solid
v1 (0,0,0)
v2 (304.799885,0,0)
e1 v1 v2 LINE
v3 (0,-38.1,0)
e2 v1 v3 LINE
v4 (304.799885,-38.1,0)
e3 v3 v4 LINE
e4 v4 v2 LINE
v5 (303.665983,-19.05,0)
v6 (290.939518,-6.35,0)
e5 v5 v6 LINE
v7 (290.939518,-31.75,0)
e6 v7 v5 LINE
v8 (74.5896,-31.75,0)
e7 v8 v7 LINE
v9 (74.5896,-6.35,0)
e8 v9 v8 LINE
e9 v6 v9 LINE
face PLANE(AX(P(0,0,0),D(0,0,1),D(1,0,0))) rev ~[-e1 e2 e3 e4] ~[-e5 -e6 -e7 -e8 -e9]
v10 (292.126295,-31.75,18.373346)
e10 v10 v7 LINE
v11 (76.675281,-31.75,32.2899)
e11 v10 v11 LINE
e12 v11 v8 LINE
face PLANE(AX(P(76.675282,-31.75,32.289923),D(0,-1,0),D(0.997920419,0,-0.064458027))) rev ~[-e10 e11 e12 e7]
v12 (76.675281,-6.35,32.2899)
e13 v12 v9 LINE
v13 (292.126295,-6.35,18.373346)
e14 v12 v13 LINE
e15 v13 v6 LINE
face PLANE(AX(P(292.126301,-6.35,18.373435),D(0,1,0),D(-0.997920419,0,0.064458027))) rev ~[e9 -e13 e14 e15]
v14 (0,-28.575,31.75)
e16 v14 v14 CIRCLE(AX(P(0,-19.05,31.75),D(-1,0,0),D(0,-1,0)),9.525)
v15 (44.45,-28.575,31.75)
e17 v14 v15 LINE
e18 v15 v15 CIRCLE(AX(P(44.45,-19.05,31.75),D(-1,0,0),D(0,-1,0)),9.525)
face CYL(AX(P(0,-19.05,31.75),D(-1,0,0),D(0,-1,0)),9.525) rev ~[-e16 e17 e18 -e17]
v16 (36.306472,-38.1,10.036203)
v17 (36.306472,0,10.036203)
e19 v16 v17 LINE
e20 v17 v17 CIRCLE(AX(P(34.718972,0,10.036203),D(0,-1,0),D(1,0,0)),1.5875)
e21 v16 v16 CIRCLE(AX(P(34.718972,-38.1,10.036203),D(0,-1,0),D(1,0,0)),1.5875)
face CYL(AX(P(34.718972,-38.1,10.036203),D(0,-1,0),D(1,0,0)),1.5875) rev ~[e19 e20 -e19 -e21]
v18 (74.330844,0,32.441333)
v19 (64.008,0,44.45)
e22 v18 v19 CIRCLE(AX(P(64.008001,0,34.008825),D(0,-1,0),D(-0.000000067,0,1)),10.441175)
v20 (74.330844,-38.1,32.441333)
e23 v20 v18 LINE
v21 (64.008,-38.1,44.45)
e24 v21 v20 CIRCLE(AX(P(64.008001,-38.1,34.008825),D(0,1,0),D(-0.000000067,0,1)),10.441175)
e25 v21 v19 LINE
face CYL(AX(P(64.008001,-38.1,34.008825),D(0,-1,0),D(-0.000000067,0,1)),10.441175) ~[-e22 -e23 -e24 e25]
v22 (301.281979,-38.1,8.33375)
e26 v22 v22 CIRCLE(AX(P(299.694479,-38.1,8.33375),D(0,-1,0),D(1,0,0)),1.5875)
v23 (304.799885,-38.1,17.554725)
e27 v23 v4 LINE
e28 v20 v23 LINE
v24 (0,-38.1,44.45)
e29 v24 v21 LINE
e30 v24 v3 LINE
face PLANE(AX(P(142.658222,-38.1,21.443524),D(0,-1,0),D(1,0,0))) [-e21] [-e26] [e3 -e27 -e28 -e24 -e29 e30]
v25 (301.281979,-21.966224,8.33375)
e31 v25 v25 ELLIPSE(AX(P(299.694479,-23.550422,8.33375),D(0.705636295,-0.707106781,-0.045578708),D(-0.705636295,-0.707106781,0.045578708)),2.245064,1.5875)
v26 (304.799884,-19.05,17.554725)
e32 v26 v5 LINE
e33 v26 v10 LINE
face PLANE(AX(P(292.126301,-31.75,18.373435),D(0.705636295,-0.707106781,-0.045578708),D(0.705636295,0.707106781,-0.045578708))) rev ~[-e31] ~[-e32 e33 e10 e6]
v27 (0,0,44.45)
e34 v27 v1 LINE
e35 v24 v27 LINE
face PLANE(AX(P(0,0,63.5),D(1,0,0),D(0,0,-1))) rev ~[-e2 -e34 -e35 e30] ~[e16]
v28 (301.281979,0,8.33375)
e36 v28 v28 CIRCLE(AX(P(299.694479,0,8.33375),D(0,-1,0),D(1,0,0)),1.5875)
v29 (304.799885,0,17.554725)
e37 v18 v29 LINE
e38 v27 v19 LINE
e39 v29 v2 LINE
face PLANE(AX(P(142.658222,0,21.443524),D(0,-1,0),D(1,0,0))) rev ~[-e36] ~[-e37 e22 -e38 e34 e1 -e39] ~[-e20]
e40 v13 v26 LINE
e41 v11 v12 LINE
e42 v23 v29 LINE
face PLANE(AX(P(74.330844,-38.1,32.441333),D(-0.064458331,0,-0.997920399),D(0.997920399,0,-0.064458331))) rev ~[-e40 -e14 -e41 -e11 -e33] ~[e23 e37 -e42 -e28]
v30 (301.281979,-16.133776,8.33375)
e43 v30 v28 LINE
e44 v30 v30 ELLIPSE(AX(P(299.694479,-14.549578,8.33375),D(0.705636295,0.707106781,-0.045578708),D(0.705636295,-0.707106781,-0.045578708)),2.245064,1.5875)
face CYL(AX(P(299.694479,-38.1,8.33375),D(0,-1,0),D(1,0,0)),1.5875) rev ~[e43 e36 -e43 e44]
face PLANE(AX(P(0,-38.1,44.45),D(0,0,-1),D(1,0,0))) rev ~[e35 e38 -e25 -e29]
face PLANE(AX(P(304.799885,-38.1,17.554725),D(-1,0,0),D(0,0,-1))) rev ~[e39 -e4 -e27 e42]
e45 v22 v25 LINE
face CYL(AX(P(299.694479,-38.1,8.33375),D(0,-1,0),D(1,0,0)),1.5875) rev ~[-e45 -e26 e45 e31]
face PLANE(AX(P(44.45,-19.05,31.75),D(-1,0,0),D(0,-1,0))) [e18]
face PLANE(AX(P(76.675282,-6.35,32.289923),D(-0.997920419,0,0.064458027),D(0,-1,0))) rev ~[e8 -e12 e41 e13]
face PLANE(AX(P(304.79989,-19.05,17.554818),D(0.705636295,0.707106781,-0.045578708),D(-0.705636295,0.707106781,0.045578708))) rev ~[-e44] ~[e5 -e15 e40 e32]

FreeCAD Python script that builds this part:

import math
import FreeCAD as App
import Part
import Sketcher
Q = App.Units.Quantity


def add_polygon(sketch, points):
    """Adds a closed chain of lines whose ends are joined by coincident constraints."""
    first, n = sketch.GeometryCount, len(points)
    for a, b in zip(points, points[1:] + points[:1]):
        sketch.addGeometry(Part.LineSegment(App.Vector(*a, 0), App.Vector(*b, 0)), False)
    for i in range(n):
        sketch.addConstraint(Sketcher.Constraint("Coincident", first + i, 2, first + (i + 1) % n, 1))

doc = App.newDocument("Part")
params = doc.addObject("Spreadsheet::Sheet", "Params")
for row, (alias, value) in enumerate([
    ("sketch1_width", "12 in"),
    ("sketch1_height", "2.5 in"),
    ("sketch1_height2", "0.75 in"),
    ("pad1_length", "1.5 in"),
    ("sketch2_diameter", "0.75 in"),
    ("pad2_length", "2 in"),
    ("sketch3_diameter", "0.75 in"),
    ("pocket1_length", "1.75 in"),
    ("sketch4_width", "2.52 in"),
    ("sketch4_height", "0.75 in"),
    ("pocket2_length", "1.83 in"),
    ("sketch5_height", "1 in"),
    ("sketch5_width", "8.5 in"),
    ("pocket3_length", "1.5 in"),
    ("sketch6_diameter", "0.125 in"),
    ("pocket4_length", "2.25 in"),
], start=1):
    params.set(f"A{row}", alias)
    params.set(f"B{row}", "=" + value)
    params.setAlias(f"B{row}", alias)

body = doc.addObject("PartDesign::Body", "Body")

# Sketch on XZ plane
sketch1 = doc.addObject("Sketcher::SketchObject", "Sketch")
body.addObject(sketch1)
sketch1.AttachmentSupport = (doc.XZ_Plane, [""])
sketch1.MapMode = "FlatFace"
add_polygon(sketch1, [(0, 64), (0, 0), (305, 0), (305, 19)])  # lines 0-3
sketch1.addConstraint([
    Sketcher.Constraint("Vertical", 0),
    Sketcher.Constraint("Horizontal", 1),
    Sketcher.Constraint("Vertical", 2),
    Sketcher.Constraint("Coincident", 0, 2, -1, 1),
    Sketcher.Constraint("DistanceX", 1, 1, 1, 2, Q("12 in")),
    Sketcher.Constraint("DistanceY", 0, 2, 0, 1, Q("2.5 in")),
    Sketcher.Constraint("DistanceY", 2, 1, 2, 2, Q("0.75 in")),
])
sketch1.setExpression("Constraints[8]", "Params.sketch1_width")
sketch1.setExpression("Constraints[9]", "Params.sketch1_height")
sketch1.setExpression("Constraints[10]", "Params.sketch1_height2")
pad1 = doc.addObject("PartDesign::Pad", "Pad")
body.addObject(pad1)
pad1.Profile = sketch1
pad1.setExpression("Length", "Params.pad1_length")

# Sketch on YZ plane
sketch2 = doc.addObject("Sketcher::SketchObject", "Sketch001")
body.addObject(sketch2)
sketch2.AttachmentSupport = (doc.YZ_Plane, [""])
sketch2.MapMode = "FlatFace"
sketch2.addGeometry(Part.Circle(App.Vector(-19, 32, 0), App.Vector(0, 0, 1), 10), False)
sketch2.addConstraint([
    Sketcher.Constraint("Diameter", 0, Q("0.75 in")),
    Sketcher.Constraint("DistanceX", 0, 3, -1, 1, Q("0.75 in")),
    Sketcher.Constraint("DistanceY", -1, 1, 0, 3, Q("1.25 in")),
])
sketch2.setExpression("Constraints[0]", "Params.sketch2_diameter")
pad2 = doc.addObject("PartDesign::Pad", "Pad001")
body.addObject(pad2)
pad2.Profile = sketch2
pad2.setExpression("Length", "Params.pad2_length")

# Sketch on YZ plane
sketch3 = doc.addObject("Sketcher::SketchObject", "Sketch002")
body.addObject(sketch3)
sketch3.AttachmentSupport = (doc.YZ_Plane, [""])
sketch3.MapMode = "FlatFace"
sketch3.addGeometry(Part.Circle(App.Vector(-19, 32, 0), App.Vector(0, 0, 1), 10), False)
sketch3.addConstraint([
    Sketcher.Constraint("Diameter", 0, Q("0.75 in")),
    Sketcher.Constraint("DistanceX", 0, 3, -1, 1, Q("0.75 in")),
    Sketcher.Constraint("DistanceY", -1, 1, 0, 3, Q("1.25 in")),
])
sketch3.setExpression("Constraints[0]", "Params.sketch3_diameter")
pocket1 = doc.addObject("PartDesign::Pocket", "Pocket")
body.addObject(pocket1)
pocket1.Profile = sketch3
pocket1.setExpression("Length", "Params.pocket1_length")
pocket1.Reversed = True

# Sketch on XZ plane
sketch4 = doc.addObject("Sketcher::SketchObject", "Sketch003")
body.addObject(sketch4)
sketch4.AttachmentSupport = (doc.XZ_Plane, [""])
sketch4.MapMode = "FlatFace"
sketch4.AttachmentOffset = App.Placement(App.Vector(0, 0, 1.5 * 25.4), App.Rotation())
sketch4.addGeometry([
    Part.LineSegment(App.Vector(0, 63.5, 0), App.Vector(0, 44.45, 0)),  # 0
    Part.LineSegment(App.Vector(0, 44.45, 0), App.Vector(64.008, 44.45, 0)),  # 1
    Part.ArcOfCircle(Part.Circle(App.Vector(64.008, 34.00883, 0), App.Vector(0, 0, 1), 10.44117), math.radians(-9), math.radians(90)),  # 2
    Part.LineSegment(App.Vector(74.33084, 32.44133, 0), App.Vector(304.79989, 17.55473, 0)),  # 3
    Part.LineSegment(App.Vector(304.79989, 17.55473, 0), App.Vector(304.79989, 0, 0)),  # 4
    Part.LineSegment(App.Vector(304.79989, 0, 0), App.Vector(304.8, 0, 0)),  # 5
    Part.LineSegment(App.Vector(304.8, 0, 0), App.Vector(304.8, 19.05, 0)),  # 6
    Part.LineSegment(App.Vector(304.8, 19.05, 0), App.Vector(0, 63.5, 0)),  # 7
], False)
sketch4.addConstraint([
    Sketcher.Constraint("Coincident", 0, 2, 1, 1),
    Sketcher.Constraint("Tangent", 1, 2, 2, 2),
    Sketcher.Constraint("Coincident", 2, 1, 3, 1),
    Sketcher.Constraint("Coincident", 3, 2, 4, 1),
    Sketcher.Constraint("Coincident", 4, 2, 5, 1),
    Sketcher.Constraint("Coincident", 5, 2, 6, 1),
    Sketcher.Constraint("Coincident", 6, 2, 7, 1),
    Sketcher.Constraint("Coincident", 7, 2, 0, 1),
    Sketcher.Constraint("Vertical", 0),
    Sketcher.Constraint("Horizontal", 1),
    Sketcher.Constraint("Vertical", 4),
    Sketcher.Constraint("Horizontal", 5),
    Sketcher.Constraint("Vertical", 6),
    Sketcher.Constraint("PointOnObject", 0, 2, -2),
    Sketcher.Constraint("PointOnObject", 4, 2, -1),
    Sketcher.Constraint("Equal", 0, 6),
    Sketcher.Constraint("DistanceX", -1, 1, 5, 2, Q("12 in")),
    Sketcher.Constraint("DistanceX", 1, 1, 1, 2, Q("2.52 in")),
    Sketcher.Constraint("DistanceY", 0, 2, 0, 1, Q("0.75 in")),
    Sketcher.Constraint("DistanceY", -1, 1, 7, 2, Q("2.5 in")),
    Sketcher.Constraint("Radius", 2, Q("10.441175 mm")),
    Sketcher.Constraint("DistanceY", 3, 2, 2, 3, Q("16.4541 mm")),
    Sketcher.Constraint("DistanceX", 5, 1, 5, 2, Q("0.000115 mm")),
    Sketcher.Constraint("DistanceX", 2, 1, 3, 2, Q("230.469041 mm")),
])
sketch4.setExpression("Constraints[17]", "Params.sketch4_width")
sketch4.setExpression("Constraints[18]", "Params.sketch4_height")
pocket2 = doc.addObject("PartDesign::Pocket", "Pocket001")
body.addObject(pocket2)
pocket2.Profile = sketch4
pocket2.setExpression("Length", "Params.pocket2_length")

# Sketch on an angled plane
sketch5 = doc.addObject("Sketcher::SketchObject", "Sketch004")
body.addObject(sketch5)
sketch5.Placement = App.Placement(App.Vector(2.395601, 0, 37.087822), App.Rotation(App.Vector(0.997920419, 0, -0.064458027), App.Vector(0, 1, 0), App.Vector(0.064458027, 0, 0.997920419), "ZXY"))
add_polygon(sketch5, [(303, -19), (290, -6), (74, -6), (74, -32), (290, -32)])  # lines 0-4
sketch5.addConstraint([
    Sketcher.Constraint("Horizontal", 1),
    Sketcher.Constraint("Vertical", 2),
    Sketcher.Constraint("Horizontal", 3),
    Sketcher.Constraint("Perpendicular", 0, 4),
    Sketcher.Constraint("Vertical", 0, 2, 3, 2),
    Sketcher.Constraint("Equal", 0, 4),
    Sketcher.Constraint("DistanceY", 2, 2, 2, 1, Q("1 in")),
    Sketcher.Constraint("DistanceX", 1, 2, 1, 1, Q("8.5 in")),
    Sketcher.Constraint("DistanceY", 0, 2, -1, 1, Q("0.25 in")),
    Sketcher.Constraint("DistanceX", -1, 1, 0, 2, Q("290.334474 mm")),
])
sketch5.setExpression("Constraints[11]", "Params.sketch5_height")
sketch5.setExpression("Constraints[12]", "Params.sketch5_width")
pocket3 = doc.addObject("PartDesign::Pocket", "Pocket002")
body.addObject(pocket3)
pocket3.Profile = sketch5
pocket3.setExpression("Length", "Params.pocket3_length")

# Sketch on XZ plane
sketch6 = doc.addObject("Sketcher::SketchObject", "Sketch005")
body.addObject(sketch6)
sketch6.AttachmentSupport = (doc.XZ_Plane, [""])
sketch6.MapMode = "FlatFace"
sketch6.AttachmentOffset = App.Placement(App.Vector(0, 0, 1.5 * 25.4), App.Rotation())
sketch6.addGeometry([
    Part.Circle(App.Vector(34.7, 10, 0), App.Vector(0, 0, 1), 1.6),
    Part.Circle(App.Vector(299.7, 8.3, 0), App.Vector(0, 0, 1), 1.6),
], False)
sketch6.addConstraint([
    Sketcher.Constraint("Equal", 0, 1),
    Sketcher.Constraint("Diameter", 0, Q("0.125 in")),
    Sketcher.Constraint("DistanceX", -1, 1, 1, 3, Q("299.694479 mm")),
    Sketcher.Constraint("DistanceY", -1, 1, 1, 3, Q("8.33375 mm")),
    Sketcher.Constraint("DistanceX", -1, 1, 0, 3, Q("34.718972 mm")),
    Sketcher.Constraint("DistanceY", -1, 1, 0, 3, Q("10.036203 mm")),
])
sketch6.setExpression("Constraints[1]", "Params.sketch6_diameter")
pocket4 = doc.addObject("PartDesign::Pocket", "Pocket003")
body.addObject(pocket4)
pocket4.Profile = sketch6
pocket4.setExpression("Length", "Params.pocket4_length")

doc.recompute()
